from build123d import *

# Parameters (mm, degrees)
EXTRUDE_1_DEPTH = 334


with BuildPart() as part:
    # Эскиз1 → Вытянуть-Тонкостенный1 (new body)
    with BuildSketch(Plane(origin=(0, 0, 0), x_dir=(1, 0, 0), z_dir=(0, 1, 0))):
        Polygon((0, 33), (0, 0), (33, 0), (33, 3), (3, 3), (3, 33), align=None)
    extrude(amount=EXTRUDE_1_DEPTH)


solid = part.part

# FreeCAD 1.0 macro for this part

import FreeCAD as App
import Part
import Sketcher


def add_polygon(sketch, points):
    """Adds a closed chain of lines whose ends are joined by coincident constraints."""
    first, n = sketch.GeometryCount, len(points)
    for a, b in zip(points, points[1:] + points[:1]):
        sketch.addGeometry(Part.LineSegment(App.Vector(*a, 0), App.Vector(*b, 0)), False)
    for i in range(n):
        sketch.addConstraint(Sketcher.Constraint("Coincident", first + i, 2, first + (i + 1) % n, 1))

doc = App.newDocument("Part")
body = doc.addObject("PartDesign::Body", "Body")

# Sketch on XZ plane
sketch1 = body.newObject("Sketcher::SketchObject", "Sketch")
sketch1.AttachmentSupport = (doc.getObject("XZ_Plane"), [""])
sketch1.MapMode = "FlatFace"
add_polygon(sketch1, [(0, -33), (0, 0), (33, 0), (33, -3), (3, -3), (3, -33)])  # lines 0-5
sketch1.addConstraint([
    Sketcher.Constraint("Vertical", 0),
    Sketcher.Constraint("Horizontal", 1),
    Sketcher.Constraint("Vertical", 2),
    Sketcher.Constraint("Horizontal", 3),
    Sketcher.Constraint("Vertical", 4),
    Sketcher.Constraint("Horizontal", 5),
    Sketcher.Constraint("Coincident", 0, 2, -1, 1),
    Sketcher.Constraint("Equal", 1, 0),
    Sketcher.Constraint("Equal", 5, 2),
    Sketcher.Constraint("DistanceX", 1, 1, 1, 2, 33.0),
    Sketcher.Constraint("DistanceX", 3, 2, 3, 1, 30.0),
])
pad1 = body.newObject("PartDesign::Pad", "Pad")
pad1.Profile = sketch1
pad1.Length = 334
pad1.Reversed = True

doc.recompute()
